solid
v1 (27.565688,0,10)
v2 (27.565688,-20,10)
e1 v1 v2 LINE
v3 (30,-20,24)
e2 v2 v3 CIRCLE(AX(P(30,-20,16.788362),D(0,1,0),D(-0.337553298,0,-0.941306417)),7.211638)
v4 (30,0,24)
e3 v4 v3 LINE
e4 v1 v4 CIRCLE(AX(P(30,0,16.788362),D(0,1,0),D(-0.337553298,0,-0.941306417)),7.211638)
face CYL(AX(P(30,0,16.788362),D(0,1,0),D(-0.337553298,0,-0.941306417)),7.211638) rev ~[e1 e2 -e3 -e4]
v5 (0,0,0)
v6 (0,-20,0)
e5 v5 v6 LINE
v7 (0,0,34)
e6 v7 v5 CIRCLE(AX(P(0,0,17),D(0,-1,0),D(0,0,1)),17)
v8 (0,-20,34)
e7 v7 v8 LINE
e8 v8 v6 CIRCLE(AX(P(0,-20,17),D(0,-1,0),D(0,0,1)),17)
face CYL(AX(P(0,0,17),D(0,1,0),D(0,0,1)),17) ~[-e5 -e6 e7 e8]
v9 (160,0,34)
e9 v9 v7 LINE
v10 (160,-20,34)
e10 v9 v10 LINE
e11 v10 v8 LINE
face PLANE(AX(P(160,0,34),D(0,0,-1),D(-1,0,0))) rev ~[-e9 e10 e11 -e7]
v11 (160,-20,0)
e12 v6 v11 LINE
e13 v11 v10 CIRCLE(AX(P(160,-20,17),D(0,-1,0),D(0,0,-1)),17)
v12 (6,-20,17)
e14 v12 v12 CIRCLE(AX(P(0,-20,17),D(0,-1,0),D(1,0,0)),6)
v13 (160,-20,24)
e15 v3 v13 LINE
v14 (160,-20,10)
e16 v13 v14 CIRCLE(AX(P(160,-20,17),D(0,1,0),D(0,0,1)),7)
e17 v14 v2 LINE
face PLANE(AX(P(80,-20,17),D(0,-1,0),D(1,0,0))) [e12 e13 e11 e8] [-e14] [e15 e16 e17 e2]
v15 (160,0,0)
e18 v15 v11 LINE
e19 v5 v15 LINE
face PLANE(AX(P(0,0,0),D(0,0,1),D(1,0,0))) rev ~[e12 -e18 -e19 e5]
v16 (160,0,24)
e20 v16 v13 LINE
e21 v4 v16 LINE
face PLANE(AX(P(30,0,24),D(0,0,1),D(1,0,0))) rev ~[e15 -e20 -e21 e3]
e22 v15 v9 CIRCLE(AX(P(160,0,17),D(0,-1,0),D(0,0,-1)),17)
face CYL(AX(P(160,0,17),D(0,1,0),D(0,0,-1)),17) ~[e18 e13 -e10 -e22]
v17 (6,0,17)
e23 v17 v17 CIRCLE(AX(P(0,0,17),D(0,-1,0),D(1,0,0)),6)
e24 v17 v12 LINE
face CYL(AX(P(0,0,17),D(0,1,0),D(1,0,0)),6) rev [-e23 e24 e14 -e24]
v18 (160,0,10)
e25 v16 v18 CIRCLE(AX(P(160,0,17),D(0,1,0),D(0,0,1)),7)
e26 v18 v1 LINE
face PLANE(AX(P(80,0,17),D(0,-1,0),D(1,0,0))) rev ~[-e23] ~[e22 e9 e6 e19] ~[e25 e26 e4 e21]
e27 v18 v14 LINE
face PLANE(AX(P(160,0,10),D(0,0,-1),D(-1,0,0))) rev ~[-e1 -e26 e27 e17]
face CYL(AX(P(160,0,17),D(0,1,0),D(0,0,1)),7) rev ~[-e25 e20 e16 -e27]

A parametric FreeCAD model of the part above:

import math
import FreeCAD as App
import Part
import Sketcher

V = App.Vector

doc = App.newDocument("Part")
body = doc.addObject("PartDesign::Body", "Body")

sketch1 = body.newObject("Sketcher::SketchObject", "Sketch")
sketch1.AttachmentSupport = (doc.getObject("XZ_Plane"), [""])
sketch1.MapMode = "FlatFace"
sketch1.addGeometry(Part.LineSegment(V(160, 34, 0), V(0, 34, 0)), False)
sketch1.addGeometry(Part.ArcOfCircle(Part.Circle(V(0, 17, 0), V(0, 0, 1), 17), math.radians(90), math.radians(270)), False)
sketch1.addGeometry(Part.LineSegment(V(0, 0, 0), V(160, 0, 0)), False)
sketch1.addGeometry(Part.ArcOfCircle(Part.Circle(V(160, 17, 0), V(0, 0, 1), 17), math.radians(-90), math.radians(90)), False)
sketch1.addGeometry(Part.Circle(V(0, 17, 0), V(0, 0, 1), 6), False)
sketch1.addGeometry(Part.LineSegment(V(160, 10, 0), V(28, 10, 0)), False)
sketch1.addGeometry(Part.ArcOfCircle(Part.Circle(V(30, 17, 0), V(0, 0, 1), 7), math.radians(90), math.radians(250)), False)
sketch1.addGeometry(Part.LineSegment(V(30, 24, 0), V(160, 24, 0)), False)
sketch1.addGeometry(Part.ArcOfCircle(Part.Circle(V(160, 17, 0), V(0, 0, 1), 7), math.radians(-90), math.radians(90)), False)
sketch1.addConstraint(Sketcher.Constraint("Tangent", 0, 2, 1, 1))
sketch1.addConstraint(Sketcher.Constraint("Tangent", 1, 2, 2, 1))
sketch1.addConstraint(Sketcher.Constraint("Tangent", 2, 2, 3, 1))
sketch1.addConstraint(Sketcher.Constraint("Tangent", 3, 2, 0, 1))
sketch1.addConstraint(Sketcher.Constraint("Coincident", 5, 2, 6, 2))
sketch1.addConstraint(Sketcher.Constraint("Tangent", 6, 1, 7, 1))
sketch1.addConstraint(Sketcher.Constraint("Tangent", 7, 2, 8, 2))
sketch1.addConstraint(Sketcher.Constraint("Tangent", 8, 1, 5, 1))
sketch1.addConstraint(Sketcher.Constraint("Horizontal", 0))
sketch1.addConstraint(Sketcher.Constraint("Horizontal", 2))
sketch1.addConstraint(Sketcher.Constraint("Horizontal", 5))
sketch1.addConstraint(Sketcher.Constraint("Horizontal", 7))
sketch1.addConstraint(Sketcher.Constraint("Coincident", 1, 2, -1, 1))
sketch1.addConstraint(Sketcher.Constraint("Coincident", 4, 3, 1, 3))
sketch1.addConstraint(Sketcher.Constraint("Coincident", 8, 3, 3, 3))
sketch1.addConstraint(Sketcher.Constraint("Diameter", 4, 12.0))
sketch1.addConstraint(Sketcher.Constraint("Radius", 1, 17.0))
sketch1.addConstraint(Sketcher.Constraint("Radius", 8, 7.0))
sketch1.addConstraint(Sketcher.Constraint("DistanceX", 0, 2, 0, 1, 160.0))
sketch1.addConstraint(Sketcher.Constraint("DistanceX", 7, 1, 7, 2, 130.0))
sketch1.addConstraint(Sketcher.Constraint("Radius", 6, 7.211638))
pad1 = body.newObject("PartDesign::Pad", "Pad")
pad1.Profile = sketch1
pad1.Length = 20

doc.recompute()
